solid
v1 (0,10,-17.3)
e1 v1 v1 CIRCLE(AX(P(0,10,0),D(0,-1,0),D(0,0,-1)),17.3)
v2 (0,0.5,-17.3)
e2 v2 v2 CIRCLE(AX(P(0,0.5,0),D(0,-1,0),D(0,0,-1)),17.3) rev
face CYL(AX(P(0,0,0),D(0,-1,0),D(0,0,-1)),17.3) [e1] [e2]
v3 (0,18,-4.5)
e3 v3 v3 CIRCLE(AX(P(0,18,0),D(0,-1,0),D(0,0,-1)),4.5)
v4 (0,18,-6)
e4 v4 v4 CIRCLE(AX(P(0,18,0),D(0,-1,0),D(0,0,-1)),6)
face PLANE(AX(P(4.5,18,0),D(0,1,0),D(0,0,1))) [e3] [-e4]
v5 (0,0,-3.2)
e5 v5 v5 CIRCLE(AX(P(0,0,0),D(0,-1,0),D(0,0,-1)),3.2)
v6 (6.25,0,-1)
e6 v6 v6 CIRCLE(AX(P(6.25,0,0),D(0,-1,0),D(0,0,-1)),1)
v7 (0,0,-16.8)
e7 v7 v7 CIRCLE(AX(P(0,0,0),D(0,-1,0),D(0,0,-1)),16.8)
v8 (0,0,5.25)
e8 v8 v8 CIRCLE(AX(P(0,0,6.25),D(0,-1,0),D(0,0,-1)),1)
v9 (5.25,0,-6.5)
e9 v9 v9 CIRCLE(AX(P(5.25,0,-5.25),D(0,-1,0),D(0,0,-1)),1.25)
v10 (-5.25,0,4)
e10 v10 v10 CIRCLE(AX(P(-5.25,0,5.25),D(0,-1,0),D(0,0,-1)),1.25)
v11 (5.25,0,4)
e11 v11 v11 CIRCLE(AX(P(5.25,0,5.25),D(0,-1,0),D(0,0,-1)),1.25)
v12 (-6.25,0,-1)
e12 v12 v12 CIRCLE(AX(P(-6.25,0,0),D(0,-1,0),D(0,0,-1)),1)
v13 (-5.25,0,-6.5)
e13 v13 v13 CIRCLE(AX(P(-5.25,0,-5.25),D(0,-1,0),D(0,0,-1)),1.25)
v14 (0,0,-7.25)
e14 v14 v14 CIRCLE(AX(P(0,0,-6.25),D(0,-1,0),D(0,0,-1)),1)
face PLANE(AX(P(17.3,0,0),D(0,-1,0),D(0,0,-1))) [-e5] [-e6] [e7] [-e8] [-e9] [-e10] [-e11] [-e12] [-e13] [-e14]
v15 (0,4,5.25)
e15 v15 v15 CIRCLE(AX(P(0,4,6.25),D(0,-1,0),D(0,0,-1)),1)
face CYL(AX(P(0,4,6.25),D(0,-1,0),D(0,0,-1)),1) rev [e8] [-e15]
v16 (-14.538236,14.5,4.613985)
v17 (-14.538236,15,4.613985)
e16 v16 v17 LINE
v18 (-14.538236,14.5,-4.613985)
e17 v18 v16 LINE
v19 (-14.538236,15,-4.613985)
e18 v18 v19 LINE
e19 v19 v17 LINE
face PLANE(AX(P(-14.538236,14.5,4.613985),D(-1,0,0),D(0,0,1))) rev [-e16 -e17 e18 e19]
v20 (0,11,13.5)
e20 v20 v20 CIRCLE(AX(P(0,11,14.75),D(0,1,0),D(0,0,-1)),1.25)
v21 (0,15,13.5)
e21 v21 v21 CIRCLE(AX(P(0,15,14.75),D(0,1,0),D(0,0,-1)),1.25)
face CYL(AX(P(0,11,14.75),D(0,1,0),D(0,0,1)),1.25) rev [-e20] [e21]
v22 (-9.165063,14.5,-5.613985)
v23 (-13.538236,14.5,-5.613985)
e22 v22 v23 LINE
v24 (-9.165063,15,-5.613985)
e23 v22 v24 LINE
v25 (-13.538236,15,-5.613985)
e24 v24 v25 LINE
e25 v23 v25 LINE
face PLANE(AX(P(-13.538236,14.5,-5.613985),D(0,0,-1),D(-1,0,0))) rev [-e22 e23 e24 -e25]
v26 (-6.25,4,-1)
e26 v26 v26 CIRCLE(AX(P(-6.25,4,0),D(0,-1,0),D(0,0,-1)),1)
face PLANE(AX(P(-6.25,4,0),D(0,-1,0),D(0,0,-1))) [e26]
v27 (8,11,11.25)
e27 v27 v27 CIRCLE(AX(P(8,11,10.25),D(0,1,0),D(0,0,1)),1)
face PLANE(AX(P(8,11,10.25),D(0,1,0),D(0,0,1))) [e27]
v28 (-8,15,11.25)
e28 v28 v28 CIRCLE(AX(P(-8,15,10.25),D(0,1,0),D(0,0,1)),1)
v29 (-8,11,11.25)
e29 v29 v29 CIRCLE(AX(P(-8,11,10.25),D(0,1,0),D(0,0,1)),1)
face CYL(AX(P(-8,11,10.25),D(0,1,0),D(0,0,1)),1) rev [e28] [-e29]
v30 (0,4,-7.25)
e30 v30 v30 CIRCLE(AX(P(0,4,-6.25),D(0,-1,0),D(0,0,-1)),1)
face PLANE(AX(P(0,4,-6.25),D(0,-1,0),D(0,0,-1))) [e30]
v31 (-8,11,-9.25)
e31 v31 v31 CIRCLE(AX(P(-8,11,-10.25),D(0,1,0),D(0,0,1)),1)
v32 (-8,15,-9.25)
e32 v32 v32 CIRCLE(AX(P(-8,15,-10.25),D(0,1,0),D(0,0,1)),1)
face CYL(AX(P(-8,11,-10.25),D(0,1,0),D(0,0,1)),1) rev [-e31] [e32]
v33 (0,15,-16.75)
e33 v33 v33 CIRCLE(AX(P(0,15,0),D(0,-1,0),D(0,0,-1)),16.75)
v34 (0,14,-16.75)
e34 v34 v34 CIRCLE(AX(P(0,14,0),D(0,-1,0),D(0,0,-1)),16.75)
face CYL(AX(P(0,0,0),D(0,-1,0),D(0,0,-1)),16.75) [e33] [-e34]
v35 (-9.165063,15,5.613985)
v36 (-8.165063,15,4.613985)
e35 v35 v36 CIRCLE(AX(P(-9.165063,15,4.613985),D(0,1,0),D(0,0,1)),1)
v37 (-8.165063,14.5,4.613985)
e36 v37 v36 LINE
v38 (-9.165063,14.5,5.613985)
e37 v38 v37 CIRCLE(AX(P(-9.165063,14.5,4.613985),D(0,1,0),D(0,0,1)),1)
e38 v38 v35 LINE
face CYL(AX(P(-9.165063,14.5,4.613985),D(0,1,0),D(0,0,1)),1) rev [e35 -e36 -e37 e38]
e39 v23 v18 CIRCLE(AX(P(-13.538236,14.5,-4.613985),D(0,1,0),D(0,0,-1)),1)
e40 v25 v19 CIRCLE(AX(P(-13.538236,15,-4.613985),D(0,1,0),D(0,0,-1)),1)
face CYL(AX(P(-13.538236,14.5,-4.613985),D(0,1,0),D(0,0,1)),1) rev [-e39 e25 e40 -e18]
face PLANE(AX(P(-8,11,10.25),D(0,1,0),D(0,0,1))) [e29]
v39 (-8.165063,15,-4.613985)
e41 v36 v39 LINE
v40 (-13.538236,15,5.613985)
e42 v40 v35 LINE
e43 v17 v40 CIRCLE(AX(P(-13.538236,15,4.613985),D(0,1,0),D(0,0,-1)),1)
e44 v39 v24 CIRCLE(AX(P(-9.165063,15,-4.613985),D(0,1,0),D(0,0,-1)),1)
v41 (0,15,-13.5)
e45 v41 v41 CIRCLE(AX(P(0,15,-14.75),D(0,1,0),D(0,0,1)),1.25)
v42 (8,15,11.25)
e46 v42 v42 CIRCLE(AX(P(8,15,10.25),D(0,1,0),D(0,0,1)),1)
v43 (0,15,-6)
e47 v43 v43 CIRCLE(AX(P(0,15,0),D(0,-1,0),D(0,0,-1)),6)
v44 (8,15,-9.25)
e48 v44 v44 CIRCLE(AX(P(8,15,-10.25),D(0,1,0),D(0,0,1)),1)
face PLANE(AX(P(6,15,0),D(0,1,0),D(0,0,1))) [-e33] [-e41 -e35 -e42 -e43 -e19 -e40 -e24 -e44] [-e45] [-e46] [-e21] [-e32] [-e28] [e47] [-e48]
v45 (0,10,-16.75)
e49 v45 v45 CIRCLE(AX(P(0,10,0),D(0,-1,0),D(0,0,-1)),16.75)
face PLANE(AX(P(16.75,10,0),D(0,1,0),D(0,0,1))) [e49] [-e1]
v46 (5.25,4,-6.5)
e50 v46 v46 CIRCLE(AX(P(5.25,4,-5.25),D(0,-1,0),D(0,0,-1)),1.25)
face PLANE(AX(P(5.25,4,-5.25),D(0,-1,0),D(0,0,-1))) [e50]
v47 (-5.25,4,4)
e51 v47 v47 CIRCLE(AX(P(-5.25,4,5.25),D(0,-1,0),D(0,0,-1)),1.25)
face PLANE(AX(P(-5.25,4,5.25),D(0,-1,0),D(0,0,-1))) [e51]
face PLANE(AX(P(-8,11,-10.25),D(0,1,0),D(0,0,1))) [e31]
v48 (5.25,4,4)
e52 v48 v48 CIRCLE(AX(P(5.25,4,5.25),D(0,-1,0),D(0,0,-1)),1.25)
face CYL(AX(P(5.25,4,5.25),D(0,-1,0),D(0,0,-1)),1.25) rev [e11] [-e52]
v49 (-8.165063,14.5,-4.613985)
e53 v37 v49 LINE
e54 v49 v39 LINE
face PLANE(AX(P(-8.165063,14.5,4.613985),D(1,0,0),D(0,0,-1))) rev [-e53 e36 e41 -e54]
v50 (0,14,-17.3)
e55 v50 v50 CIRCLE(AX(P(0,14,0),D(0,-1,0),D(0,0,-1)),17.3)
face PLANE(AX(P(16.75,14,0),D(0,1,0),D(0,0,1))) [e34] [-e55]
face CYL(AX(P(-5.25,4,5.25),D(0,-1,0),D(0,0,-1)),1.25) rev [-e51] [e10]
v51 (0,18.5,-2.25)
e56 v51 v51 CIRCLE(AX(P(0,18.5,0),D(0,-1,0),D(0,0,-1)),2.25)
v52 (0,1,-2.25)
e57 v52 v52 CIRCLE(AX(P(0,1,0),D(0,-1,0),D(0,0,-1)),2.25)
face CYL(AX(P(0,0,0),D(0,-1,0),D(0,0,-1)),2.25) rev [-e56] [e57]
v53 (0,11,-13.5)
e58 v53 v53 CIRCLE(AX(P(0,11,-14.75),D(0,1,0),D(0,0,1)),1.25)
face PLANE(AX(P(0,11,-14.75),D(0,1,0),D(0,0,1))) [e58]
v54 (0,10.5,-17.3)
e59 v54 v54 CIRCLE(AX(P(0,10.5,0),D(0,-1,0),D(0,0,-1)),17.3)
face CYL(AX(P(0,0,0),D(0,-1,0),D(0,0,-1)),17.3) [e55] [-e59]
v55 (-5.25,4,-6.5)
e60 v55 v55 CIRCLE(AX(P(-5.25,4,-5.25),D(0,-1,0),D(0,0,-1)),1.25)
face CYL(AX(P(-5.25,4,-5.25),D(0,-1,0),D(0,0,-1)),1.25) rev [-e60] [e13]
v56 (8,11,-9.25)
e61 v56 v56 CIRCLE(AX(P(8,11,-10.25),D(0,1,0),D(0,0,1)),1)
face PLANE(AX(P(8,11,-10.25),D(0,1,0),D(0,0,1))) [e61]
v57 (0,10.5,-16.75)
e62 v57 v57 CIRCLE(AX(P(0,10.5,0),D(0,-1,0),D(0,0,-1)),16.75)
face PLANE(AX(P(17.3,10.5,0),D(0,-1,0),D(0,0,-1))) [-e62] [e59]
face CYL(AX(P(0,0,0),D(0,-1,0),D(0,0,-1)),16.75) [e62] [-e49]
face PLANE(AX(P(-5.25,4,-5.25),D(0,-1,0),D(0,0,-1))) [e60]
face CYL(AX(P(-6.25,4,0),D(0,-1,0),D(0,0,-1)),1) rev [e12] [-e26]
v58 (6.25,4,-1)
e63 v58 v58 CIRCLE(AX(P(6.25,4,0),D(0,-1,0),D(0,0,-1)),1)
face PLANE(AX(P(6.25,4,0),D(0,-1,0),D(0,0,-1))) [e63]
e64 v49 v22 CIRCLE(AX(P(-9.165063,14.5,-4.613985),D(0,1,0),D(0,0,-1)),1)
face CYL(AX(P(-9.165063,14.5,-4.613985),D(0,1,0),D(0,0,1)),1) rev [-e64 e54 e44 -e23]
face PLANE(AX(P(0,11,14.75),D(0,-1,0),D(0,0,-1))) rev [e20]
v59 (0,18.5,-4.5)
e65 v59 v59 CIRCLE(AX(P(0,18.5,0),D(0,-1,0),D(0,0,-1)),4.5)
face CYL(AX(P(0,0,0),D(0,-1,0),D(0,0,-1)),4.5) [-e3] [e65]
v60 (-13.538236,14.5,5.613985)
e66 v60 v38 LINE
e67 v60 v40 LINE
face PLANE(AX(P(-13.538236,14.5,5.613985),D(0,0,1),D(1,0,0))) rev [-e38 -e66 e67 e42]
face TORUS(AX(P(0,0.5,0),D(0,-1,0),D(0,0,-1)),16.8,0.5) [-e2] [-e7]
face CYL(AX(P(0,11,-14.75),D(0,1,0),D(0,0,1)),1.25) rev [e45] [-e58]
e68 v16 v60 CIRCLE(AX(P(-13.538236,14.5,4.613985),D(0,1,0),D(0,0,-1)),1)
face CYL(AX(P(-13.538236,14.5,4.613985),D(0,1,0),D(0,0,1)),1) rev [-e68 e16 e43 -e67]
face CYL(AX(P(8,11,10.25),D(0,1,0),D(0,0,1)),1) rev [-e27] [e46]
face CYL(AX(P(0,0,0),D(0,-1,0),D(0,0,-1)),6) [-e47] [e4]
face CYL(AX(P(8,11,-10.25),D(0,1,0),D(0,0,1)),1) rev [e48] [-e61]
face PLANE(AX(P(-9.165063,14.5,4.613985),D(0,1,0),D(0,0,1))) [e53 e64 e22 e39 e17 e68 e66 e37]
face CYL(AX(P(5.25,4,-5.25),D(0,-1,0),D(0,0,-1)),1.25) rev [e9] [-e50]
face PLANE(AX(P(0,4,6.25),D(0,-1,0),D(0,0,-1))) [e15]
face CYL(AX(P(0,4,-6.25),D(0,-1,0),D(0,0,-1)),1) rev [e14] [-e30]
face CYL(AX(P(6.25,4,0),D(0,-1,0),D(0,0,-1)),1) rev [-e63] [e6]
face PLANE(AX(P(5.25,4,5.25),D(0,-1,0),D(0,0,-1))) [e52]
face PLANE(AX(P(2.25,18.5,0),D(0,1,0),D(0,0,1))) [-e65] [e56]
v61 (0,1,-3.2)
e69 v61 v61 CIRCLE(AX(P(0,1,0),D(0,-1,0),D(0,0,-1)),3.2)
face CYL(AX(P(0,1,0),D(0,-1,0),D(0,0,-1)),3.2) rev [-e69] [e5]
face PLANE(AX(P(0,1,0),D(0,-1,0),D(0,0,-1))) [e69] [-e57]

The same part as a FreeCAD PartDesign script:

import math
import FreeCAD as App
import Part
import Sketcher
from FreeCAD import Vector
Q = App.Units.Quantity


def edges_at(feature, points):
    """Names of the edges that pass closest to the given points."""
    edges = feature.Shape.Edges
    near = lambda p: min(range(len(edges)), key=lambda i: edges[i].distToShape(Part.Vertex(*p))[0])
    return sorted({f"Edge{near(p) + 1}" for p in points})


def add_polygon(sketch, points):
    """Adds a closed chain of lines whose ends are joined by coincident constraints."""
    first, n = sketch.GeometryCount, len(points)
    for a, b in zip(points, points[1:] + points[:1]):
        sketch.addGeometry(Part.LineSegment(App.Vector(*a, 0), App.Vector(*b, 0)), False)
    for i in range(n):
        sketch.addConstraint(Sketcher.Constraint("Coincident", first + i, 2, first + (i + 1) % n, 1))

doc = App.newDocument("Part")
body = doc.addObject("PartDesign::Body", "Body")

sketch1 = body.newObject("Sketcher::SketchObject", "Sketch")
sketch1.AttachmentSupport = (doc.getObject("XY_Plane"), [""])
sketch1.MapMode = "FlatFace"
add_polygon(sketch1, [(2.25, 18.5), (2.25, 0), (17.3, 0), (17.3, 10), (16.75, 10), (16.75, 10.5), (17.3, 10.5), (17.3, 14), (16.75, 14), (16.75, 15), (6, 15), (6, 18), (4.5, 18), (4.5, 18.5)])
sketch1.addConstraint([
    Sketcher.Constraint("Vertical", 0),
    Sketcher.Constraint("Horizontal", 1),
    Sketcher.Constraint("Vertical", 2),
    Sketcher.Constraint("Horizontal", 3),
    Sketcher.Constraint("Vertical", 4),
    Sketcher.Constraint("Horizontal", 5),
    Sketcher.Constraint("Vertical", 6),
    Sketcher.Constraint("Horizontal", 7),
    Sketcher.Constraint("Vertical", 8),
    Sketcher.Constraint("Horizontal", 9),
    Sketcher.Constraint("Vertical", 10),
    Sketcher.Constraint("Horizontal", 11),
    Sketcher.Constraint("Vertical", 12),
    Sketcher.Constraint("Horizontal", 13),
    Sketcher.Constraint("PointOnObject", 0, 2, -1),
    Sketcher.Constraint("Vertical", 2, 2, 5, 2),
    Sketcher.Constraint("Vertical", 4, 2, 7, 2),
    Sketcher.Constraint("Equal", 4, 12),
    Sketcher.Constraint("DistanceY", 2, 1, 2, 2, Q("10 mm")),
    Sketcher.Constraint("DistanceY", 8, 1, 8, 2, Q("1 mm")),
    Sketcher.Constraint("DistanceY", 10, 1, 10, 2, Q("3 mm")),
    Sketcher.Constraint("DistanceX", 11, 2, 11, 1, Q("1.5 mm")),
    Sketcher.Constraint("DistanceY", 0, 2, 0, 1, Q("18.5 mm")),
    Sketcher.Constraint("DistanceY", 4, 1, 4, 2, Q("0.5 mm")),
    Sketcher.Constraint("DistanceX", -1, 1, 9, 2, Q("6 mm")),
    Sketcher.Constraint("DistanceX", 1, 1, 1, 2, Q("15.05 mm")),
    Sketcher.Constraint("DistanceX", 3, 2, 3, 1, Q("0.55 mm")),
    Sketcher.Constraint("DistanceX", 9, 2, 9, 1, Q("10.75 mm")),
])
revolution = body.newObject("PartDesign::Revolution", "Revolution")
revolution.Profile = sketch1
revolution.ReferenceAxis = (sketch1, ["V_Axis"])
revolution.Angle = 360
doc.recompute()

fillet = body.newObject("PartDesign::Fillet", "Fillet")
fillet.Base = (revolution, edges_at(revolution, [(0, 0, 17.3)]))
fillet.Radius = 0.5

sketch2 = body.newObject("Sketcher::SketchObject", "Sketch001")
sketch2.AttachmentSupport = (doc.getObject("XZ_Plane"), [""])
sketch2.MapMode = "FlatFace"
sketch2.AttachmentOffset = App.Placement(Vector(0, 0, -15), App.Rotation())
sketch2.addGeometry([
    Part.Circle(Vector(-8, -10.25, 0), Vector(0, 0, 1), 1),
    Part.Circle(Vector(8, -10.25, 0), Vector(0, 0, 1), 1),
    Part.Circle(Vector(8, 10.25, 0), Vector(0, 0, 1), 1),
    Part.Circle(Vector(-8, 10.25, 0), Vector(0, 0, 1), 1),
    Part.Circle(Vector(0, -14.75, 0), Vector(0, 0, 1), 1.25),
    Part.Circle(Vector(0, 14.75, 0), Vector(0, 0, 1), 1.25),
], False)
sketch2.addConstraint([
    Sketcher.Constraint("Equal", 0, 1),
    Sketcher.Constraint("Equal", 1, 2),
    Sketcher.Constraint("Equal", 2, 3),
    Sketcher.Constraint("Equal", 4, 5),
    Sketcher.Constraint("Symmetric", 0, 3, 2, 3, -1, 1),
    Sketcher.Constraint("Symmetric", 1, 3, 3, 3, -1, 1),
    Sketcher.Constraint("Symmetric", 4, 3, 5, 3, -1, 1),
    Sketcher.Constraint("Symmetric", 0, 3, 1, 3, -2),
    Sketcher.Constraint("PointOnObject", 4, 3, -2),
    Sketcher.Constraint("Diameter", 0, Q("2 mm")),
    Sketcher.Constraint("Diameter", 4, Q("2.5 mm")),
    Sketcher.Constraint("DistanceX", 0, 3, -1, 1, Q("8 mm")),
    Sketcher.Constraint("DistanceY", 4, 3, 2, 3, Q("25 mm")),
    Sketcher.Constraint("DistanceY", 1, 3, 2, 3, Q("20.5 mm")),
])
pocket1 = body.newObject("PartDesign::Pocket", "Pocket")
pocket1.Profile = sketch2
pocket1.Length = 4
pocket1.Reversed = True

sketch3 = body.newObject("Sketcher::SketchObject", "Sketch002")
sketch3.AttachmentSupport = (doc.getObject("XZ_Plane"), [""])
sketch3.MapMode = "FlatFace"
sketch3.addGeometry([
    Part.Circle(Vector(0, 6.25, 0), Vector(0, 0, 1), 1),
    Part.Circle(Vector(5.25, 5.25, 0), Vector(0, 0, 1), 1.25),
    Part.Circle(Vector(6.25, 0, 0), Vector(0, 0, 1), 1),
    Part.Circle(Vector(5.25, -5.25, 0), Vector(0, 0, 1), 1.25),
    Part.Circle(Vector(0, -6.25, 0), Vector(0, 0, 1), 1),
    Part.Circle(Vector(-5.25, -5.25, 0), Vector(0, 0, 1), 1.25),
    Part.Circle(Vector(-6.25, 0, 0), Vector(0, 0, 1), 1),
    Part.Circle(Vector(-5.25, 5.25, 0), Vector(0, 0, 1), 1.25),
], False)
sketch3.addConstraint([
    Sketcher.Constraint("Equal", 0, 2),
    Sketcher.Constraint("Equal", 1, 3),
    Sketcher.Constraint("Equal", 2, 4),
    Sketcher.Constraint("Equal", 3, 5),
    Sketcher.Constraint("Equal", 4, 6),
    Sketcher.Constraint("Equal", 5, 7),
    Sketcher.Constraint("Symmetric", 0, 3, 4, 3, -1, 1),
    Sketcher.Constraint("Symmetric", 1, 3, 5, 3, -1, 1),
    Sketcher.Constraint("Symmetric", 2, 3, 6, 3, -1, 1),
    Sketcher.Constraint("Symmetric", 3, 3, 7, 3, -1, 1),
    Sketcher.Constraint("Symmetric", 3, 3, 5, 3, -2),
    Sketcher.Constraint("PointOnObject", 0, 3, -2),
    Sketcher.Constraint("PointOnObject", 2, 3, -1),
    Sketcher.Constraint("Diameter", 0, Q("2 mm")),
    Sketcher.Constraint("Diameter", 1, Q("2.5 mm")),
    Sketcher.Constraint("DistanceY", 1, 3, 0, 3, Q("1 mm")),
    Sketcher.Constraint("DistanceX", 1, 3, 2, 3, Q("1 mm")),
    Sketcher.Constraint("DistanceY", 3, 3, 1, 3, Q("10.5 mm")),
    Sketcher.Constraint("DistanceX", 5, 3, 3, 3, Q("10.5 mm")),
])
pocket2 = body.newObject("PartDesign::Pocket", "Pocket001")
pocket2.Profile = sketch3
pocket2.Length = 4

sketch4 = body.newObject("Sketcher::SketchObject", "Sketch003")
sketch4.AttachmentSupport = (doc.getObject("XZ_Plane"), [""])
sketch4.MapMode = "FlatFace"
sketch4.addGeometry(Part.Circle(Vector(0, 0, 0), Vector(0, 0, 1), 3.2), False)
sketch4.addConstraint([
    Sketcher.Constraint("Coincident", 0, 3, -1, 1),
    Sketcher.Constraint("Diameter", 0, Q("6.4 mm")),
])
pocket3 = body.newObject("PartDesign::Pocket", "Pocket002")
pocket3.Profile = sketch4
pocket3.Length = 1

sketch5 = body.newObject("Sketcher::SketchObject", "Sketch004")
sketch5.AttachmentSupport = (doc.getObject("XZ_Plane"), [""])
sketch5.MapMode = "FlatFace"
sketch5.AttachmentOffset = App.Placement(Vector(0, 0, -15), App.Rotation())
sketch5.addGeometry([
    Part.LineSegment(Vector(-13.538236, 5.613985, 0), Vector(-9.165063, 5.613985, 0)),
    Part.ArcOfCircle(Part.Circle(Vector(-9.165063, 4.613985, 0), Vector(0, 0, 1), 1), math.radians(0), math.radians(90)),
    Part.LineSegment(Vector(-8.165063, 4.613985, 0), Vector(-8.165063, -4.613985, 0)),
    Part.ArcOfCircle(Part.Circle(Vector(-9.165063, -4.613985, 0), Vector(0, 0, 1), 1), math.radians(-90), math.radians(0)),
    Part.LineSegment(Vector(-9.165063, -5.613985, 0), Vector(-13.538236, -5.613985, 0)),
    Part.ArcOfCircle(Part.Circle(Vector(-13.538236, -4.613985, 0), Vector(0, 0, 1), 1), math.radians(180), math.radians(270)),
    Part.LineSegment(Vector(-14.538236, -4.613985, 0), Vector(-14.538236, 4.613985, 0)),
    Part.ArcOfCircle(Part.Circle(Vector(-13.538236, 4.613985, 0), Vector(0, 0, 1), 1), math.radians(90), math.radians(180)),
], False)
sketch5.addConstraint([
    Sketcher.Constraint("Tangent", 0, 2, 1, 2),
    Sketcher.Constraint("Tangent", 1, 1, 2, 1),
    Sketcher.Constraint("Tangent", 2, 2, 3, 2),
    Sketcher.Constraint("Tangent", 3, 1, 4, 1),
    Sketcher.Constraint("Tangent", 4, 2, 5, 2),
    Sketcher.Constraint("Tangent", 5, 1, 6, 1),
    Sketcher.Constraint("Tangent", 6, 2, 7, 2),
    Sketcher.Constraint("Tangent", 7, 1, 0, 1),
    Sketcher.Constraint("Horizontal", 0),
    Sketcher.Constraint("Vertical", 2),
    Sketcher.Constraint("Horizontal", 4),
    Sketcher.Constraint("Vertical", 6),
    Sketcher.Constraint("Equal", 1, 3),
    Sketcher.Constraint("Equal", 3, 5),
    Sketcher.Constraint("Equal", 5, 7),
    Sketcher.Constraint("Radius", 1, Q("1 mm")),
    Sketcher.Constraint("DistanceY", 2, 2, 2, 1, Q("9.227971 mm")),
    Sketcher.Constraint("DistanceX", 0, 1, 0, 2, Q("4.373172 mm")),
    Sketcher.Constraint("DistanceX", 1, 3, -1, 1, Q("9.165063 mm")),
    Sketcher.Constraint("DistanceY", -1, 1, 1, 3, Q("4.613985 mm")),
])
pocket4 = body.newObject("PartDesign::Pocket", "Pocket003")
pocket4.Profile = sketch5
pocket4.Length = 0.5
pocket4.Reversed = True

doc.recompute()
